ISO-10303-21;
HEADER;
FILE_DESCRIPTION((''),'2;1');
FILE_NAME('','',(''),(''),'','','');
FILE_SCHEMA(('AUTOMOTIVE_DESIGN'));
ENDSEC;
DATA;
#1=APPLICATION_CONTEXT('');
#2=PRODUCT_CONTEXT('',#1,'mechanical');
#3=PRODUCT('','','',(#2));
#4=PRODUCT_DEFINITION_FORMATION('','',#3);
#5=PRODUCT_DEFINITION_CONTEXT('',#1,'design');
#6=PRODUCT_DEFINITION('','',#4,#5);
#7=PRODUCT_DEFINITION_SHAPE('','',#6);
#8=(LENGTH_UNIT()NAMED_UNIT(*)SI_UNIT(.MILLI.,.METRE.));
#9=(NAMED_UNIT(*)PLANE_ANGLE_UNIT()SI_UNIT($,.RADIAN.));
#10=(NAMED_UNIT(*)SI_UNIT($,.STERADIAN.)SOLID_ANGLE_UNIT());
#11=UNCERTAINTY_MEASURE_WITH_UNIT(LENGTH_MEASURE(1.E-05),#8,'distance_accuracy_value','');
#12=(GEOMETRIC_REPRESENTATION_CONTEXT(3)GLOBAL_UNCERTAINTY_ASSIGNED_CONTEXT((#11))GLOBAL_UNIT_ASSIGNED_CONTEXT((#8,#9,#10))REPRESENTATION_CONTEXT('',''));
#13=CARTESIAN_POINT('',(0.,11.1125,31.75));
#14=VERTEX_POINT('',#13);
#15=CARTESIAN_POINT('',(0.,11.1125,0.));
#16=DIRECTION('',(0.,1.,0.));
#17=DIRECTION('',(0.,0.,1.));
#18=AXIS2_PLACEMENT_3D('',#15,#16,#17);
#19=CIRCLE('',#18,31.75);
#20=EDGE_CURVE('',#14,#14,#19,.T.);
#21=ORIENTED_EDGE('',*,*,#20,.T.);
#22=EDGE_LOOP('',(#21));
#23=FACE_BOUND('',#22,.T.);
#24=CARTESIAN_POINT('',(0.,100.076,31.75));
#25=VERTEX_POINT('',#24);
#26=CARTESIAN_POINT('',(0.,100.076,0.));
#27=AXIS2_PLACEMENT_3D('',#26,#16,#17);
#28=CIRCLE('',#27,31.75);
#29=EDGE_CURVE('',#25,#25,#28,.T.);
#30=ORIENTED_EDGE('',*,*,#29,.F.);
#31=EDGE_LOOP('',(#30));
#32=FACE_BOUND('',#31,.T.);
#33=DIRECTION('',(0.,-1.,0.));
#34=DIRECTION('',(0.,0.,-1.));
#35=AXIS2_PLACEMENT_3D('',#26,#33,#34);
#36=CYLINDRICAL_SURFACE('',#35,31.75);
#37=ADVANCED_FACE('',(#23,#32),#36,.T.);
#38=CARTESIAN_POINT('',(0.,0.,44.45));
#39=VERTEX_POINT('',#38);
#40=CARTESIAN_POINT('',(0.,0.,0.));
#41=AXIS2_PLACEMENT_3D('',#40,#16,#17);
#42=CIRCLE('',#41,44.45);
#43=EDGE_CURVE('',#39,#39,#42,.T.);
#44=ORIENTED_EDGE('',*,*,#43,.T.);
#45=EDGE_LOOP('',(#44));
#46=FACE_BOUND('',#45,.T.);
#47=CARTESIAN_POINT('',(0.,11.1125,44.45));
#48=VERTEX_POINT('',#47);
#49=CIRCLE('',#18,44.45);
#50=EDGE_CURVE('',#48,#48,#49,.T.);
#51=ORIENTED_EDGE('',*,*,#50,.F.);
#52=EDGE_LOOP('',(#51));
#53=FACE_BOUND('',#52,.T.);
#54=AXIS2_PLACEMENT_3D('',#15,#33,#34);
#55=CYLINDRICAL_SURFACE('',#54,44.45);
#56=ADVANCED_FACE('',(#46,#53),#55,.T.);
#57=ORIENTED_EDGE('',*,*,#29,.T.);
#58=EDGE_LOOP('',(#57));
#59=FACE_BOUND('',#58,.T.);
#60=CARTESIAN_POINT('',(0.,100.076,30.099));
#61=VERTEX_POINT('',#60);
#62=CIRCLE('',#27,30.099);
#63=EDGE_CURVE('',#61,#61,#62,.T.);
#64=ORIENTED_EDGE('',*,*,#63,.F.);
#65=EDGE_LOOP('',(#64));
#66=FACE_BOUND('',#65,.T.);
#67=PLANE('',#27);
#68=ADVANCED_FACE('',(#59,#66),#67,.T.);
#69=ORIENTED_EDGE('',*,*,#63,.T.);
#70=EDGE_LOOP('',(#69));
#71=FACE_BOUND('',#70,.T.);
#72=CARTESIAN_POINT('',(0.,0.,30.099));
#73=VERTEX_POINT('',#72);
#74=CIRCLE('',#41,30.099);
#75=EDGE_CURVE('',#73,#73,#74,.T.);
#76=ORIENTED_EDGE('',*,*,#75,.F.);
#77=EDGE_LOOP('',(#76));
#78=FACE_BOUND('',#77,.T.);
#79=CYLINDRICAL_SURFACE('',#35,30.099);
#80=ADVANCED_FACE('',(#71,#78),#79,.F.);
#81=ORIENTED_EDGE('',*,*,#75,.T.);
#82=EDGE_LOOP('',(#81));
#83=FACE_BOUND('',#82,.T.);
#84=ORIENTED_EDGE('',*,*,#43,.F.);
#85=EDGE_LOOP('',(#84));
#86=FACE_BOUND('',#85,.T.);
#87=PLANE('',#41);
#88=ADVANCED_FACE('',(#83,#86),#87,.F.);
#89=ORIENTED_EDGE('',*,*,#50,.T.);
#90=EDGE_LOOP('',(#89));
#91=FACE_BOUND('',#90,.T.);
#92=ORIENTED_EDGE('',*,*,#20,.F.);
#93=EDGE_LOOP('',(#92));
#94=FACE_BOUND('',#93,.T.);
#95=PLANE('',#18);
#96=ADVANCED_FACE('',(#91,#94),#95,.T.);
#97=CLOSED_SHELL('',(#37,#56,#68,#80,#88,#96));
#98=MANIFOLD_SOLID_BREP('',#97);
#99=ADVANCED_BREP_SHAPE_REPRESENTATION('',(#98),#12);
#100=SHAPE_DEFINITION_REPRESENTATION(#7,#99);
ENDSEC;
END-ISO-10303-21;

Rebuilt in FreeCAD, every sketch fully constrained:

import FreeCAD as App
import Part
import Sketcher
from FreeCAD import Vector
Q = App.Units.Quantity

doc = App.newDocument("Part")
body = doc.addObject("PartDesign::Body", "Body")

# Sketch on XZ plane
sketch1 = body.newObject("Sketcher::SketchObject", "Sketch")
sketch1.AttachmentSupport = (doc.getObject("XZ_Plane"), [""])
sketch1.MapMode = "FlatFace"
sketch1.addGeometry([
    Part.Circle(Vector(0, 0, 0), Vector(0, 0, 1), 32),
    Part.Circle(Vector(0, 0, 0), Vector(0, 0, 1), 30),
], False)
sketch1.addConstraint([
    Sketcher.Constraint("Coincident", 0, 3, -1, 1),
    Sketcher.Constraint("Coincident", 1, 3, -1, 1),
    Sketcher.Constraint("Diameter", 0, Q("2.5 in")),
    Sketcher.Constraint("Diameter", 1, Q("2.37 in")),
])
pad1 = body.newObject("PartDesign::Pad", "Pad")
pad1.Profile = sketch1
pad1.Length = Q("3.94 in")
pad1.Reversed = True

# Sketch on XZ plane
sketch2 = body.newObject("Sketcher::SketchObject", "Sketch001")
sketch2.AttachmentSupport = (doc.getObject("XZ_Plane"), [""])
sketch2.MapMode = "FlatFace"
sketch2.addGeometry([
    Part.Circle(Vector(0, 0, 0), Vector(0, 0, 1), 44),
    Part.Circle(Vector(0, 0, 0), Vector(0, 0, 1), 32),
], False)
sketch2.addConstraint([
    Sketcher.Constraint("Coincident", 0, 3, -1, 1),
    Sketcher.Constraint("Coincident", 1, 3, -1, 1),
    Sketcher.Constraint("Diameter", 0, Q("3.5 in")),
    Sketcher.Constraint("Diameter", 1, Q("2.5 in")),
])
pad2 = body.newObject("PartDesign::Pad", "Pad001")
pad2.Profile = sketch2
pad2.Length = Q("0.4375 in")
pad2.Reversed = True

doc.recompute()
